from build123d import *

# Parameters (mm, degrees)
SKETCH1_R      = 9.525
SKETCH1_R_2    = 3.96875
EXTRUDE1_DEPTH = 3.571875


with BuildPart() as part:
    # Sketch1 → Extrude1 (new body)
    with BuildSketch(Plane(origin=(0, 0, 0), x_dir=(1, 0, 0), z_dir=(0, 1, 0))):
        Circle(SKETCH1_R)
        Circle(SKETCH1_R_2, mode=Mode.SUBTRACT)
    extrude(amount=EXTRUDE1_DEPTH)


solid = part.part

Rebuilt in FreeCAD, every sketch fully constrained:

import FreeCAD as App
import Part
import Sketcher
from FreeCAD import Vector
Q = App.Units.Quantity

doc = App.newDocument("Part")
body = doc.addObject("PartDesign::Body", "Body")

sketch1 = body.newObject("Sketcher::SketchObject", "Sketch")
sketch1.AttachmentSupport = (doc.getObject("XZ_Plane"), [""])
sketch1.MapMode = "FlatFace"
sketch1.addGeometry([
    Part.Circle(Vector(0, 0, 0), Vector(0, 0, 1), 9.5),
    Part.Circle(Vector(0, 0, 0), Vector(0, 0, 1), 4),
], False)
sketch1.addConstraint([
    Sketcher.Constraint("Coincident", 0, 3, -1, 1),
    Sketcher.Constraint("Coincident", 1, 3, -1, 1),
    Sketcher.Constraint("Diameter", 0, Q("0.75 in")),
    Sketcher.Constraint("Diameter", 1, Q("0.3125 in")),
])
pad1 = body.newObject("PartDesign::Pad", "Pad")
pad1.Profile = sketch1
pad1.Length = Q("0.140625 in")
pad1.Reversed = True

doc.recompute()
